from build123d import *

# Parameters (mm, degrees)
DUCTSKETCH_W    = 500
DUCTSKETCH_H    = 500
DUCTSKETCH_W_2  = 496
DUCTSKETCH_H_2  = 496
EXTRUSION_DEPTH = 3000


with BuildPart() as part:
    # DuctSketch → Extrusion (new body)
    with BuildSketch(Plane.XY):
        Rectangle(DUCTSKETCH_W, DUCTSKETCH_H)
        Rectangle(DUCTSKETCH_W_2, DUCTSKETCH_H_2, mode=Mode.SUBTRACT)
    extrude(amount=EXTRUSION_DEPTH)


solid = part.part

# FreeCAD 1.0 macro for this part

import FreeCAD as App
import Part
import Sketcher


def add_polygon(sketch, points):
    """Adds a closed chain of lines whose ends are joined by coincident constraints."""
    first, n = sketch.GeometryCount, len(points)
    for a, b in zip(points, points[1:] + points[:1]):
        sketch.addGeometry(Part.LineSegment(App.Vector(*a, 0), App.Vector(*b, 0)), False)
    for i in range(n):
        sketch.addConstraint(Sketcher.Constraint("Coincident", first + i, 2, first + (i + 1) % n, 1))

doc = App.newDocument("Part")
params = doc.addObject("Spreadsheet::Sheet", "Params")
for row, (alias, value) in enumerate([
    ("sketch1_width", "500 mm"),
    ("sketch1_width2", "496 mm"),
    ("pad1_length", "3000 mm"),
], start=1):
    params.set(f"A{row}", alias)
    params.set(f"B{row}", "=" + value)
    params.setAlias(f"B{row}", alias)

body = doc.addObject("PartDesign::Body", "Body")

# Sketch on XY plane
sketch1 = body.newObject("Sketcher::SketchObject", "Sketch")
sketch1.AttachmentSupport = (doc.getObject("XY_Plane"), [""])
sketch1.MapMode = "FlatFace"
add_polygon(sketch1, [(-250, 250), (-250, -250), (250, -250), (250, 250)])  # lines 0-3
add_polygon(sketch1, [(248, -248), (-248, -248), (-248, 248), (248, 248)])  # lines 4-7
sketch1.addConstraint([
    Sketcher.Constraint("Vertical", 0),
    Sketcher.Constraint("Horizontal", 1),
    Sketcher.Constraint("Vertical", 2),
    Sketcher.Constraint("Horizontal", 3),
    Sketcher.Constraint("Horizontal", 4),
    Sketcher.Constraint("Vertical", 5),
    Sketcher.Constraint("Horizontal", 6),
    Sketcher.Constraint("Vertical", 7),
    Sketcher.Constraint("Symmetric", 0, 2, 2, 2, -1, 1),
    Sketcher.Constraint("Symmetric", 4, 2, 6, 2, -1, 1),
    Sketcher.Constraint("Equal", 3, 0),
    Sketcher.Constraint("Equal", 6, 5),
    Sketcher.Constraint("DistanceX", 1, 1, 1, 2, 500.0),
    Sketcher.Constraint("DistanceX", 4, 2, 4, 1, 496.0),
])
sketch1.setExpression("Constraints[20]", "Params.sketch1_width")
sketch1.setExpression("Constraints[21]", "Params.sketch1_width2")
pad1 = body.newObject("PartDesign::Pad", "Pad")
pad1.Profile = sketch1
pad1.setExpression("Length", "Params.pad1_length")

doc.recompute()
